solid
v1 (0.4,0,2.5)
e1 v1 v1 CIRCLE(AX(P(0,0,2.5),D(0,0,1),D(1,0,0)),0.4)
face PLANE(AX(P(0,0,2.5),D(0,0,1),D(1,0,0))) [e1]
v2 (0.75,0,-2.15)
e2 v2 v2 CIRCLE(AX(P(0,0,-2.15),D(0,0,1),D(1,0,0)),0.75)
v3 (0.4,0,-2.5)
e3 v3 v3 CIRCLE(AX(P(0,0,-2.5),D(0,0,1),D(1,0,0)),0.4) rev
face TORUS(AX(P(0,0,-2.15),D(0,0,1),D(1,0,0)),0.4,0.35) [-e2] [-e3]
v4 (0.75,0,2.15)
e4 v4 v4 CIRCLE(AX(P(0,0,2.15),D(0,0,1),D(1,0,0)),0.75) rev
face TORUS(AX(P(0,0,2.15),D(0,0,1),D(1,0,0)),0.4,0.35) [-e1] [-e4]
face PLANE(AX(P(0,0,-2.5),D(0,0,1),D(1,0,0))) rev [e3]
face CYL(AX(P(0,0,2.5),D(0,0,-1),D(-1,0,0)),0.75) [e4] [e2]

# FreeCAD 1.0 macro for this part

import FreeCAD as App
import Part
import Sketcher

V = App.Vector
Q = App.Units.Quantity


def edges_at(feature, points):
    """Names of the edges that pass closest to the given points."""
    edges = feature.Shape.Edges
    near = lambda p: min(range(len(edges)), key=lambda i: edges[i].distToShape(Part.Vertex(*p))[0])
    return sorted({f"Edge{near(p) + 1}" for p in points})

doc = App.newDocument("Part")
body = doc.addObject("PartDesign::Body", "Body")

# Sketch on XY plane
sketch1 = body.newObject("Sketcher::SketchObject", "Sketch")
sketch1.AttachmentSupport = (doc.getObject("XY_Plane"), [""])
sketch1.MapMode = "FlatFace"
sketch1.addGeometry(Part.Circle(V(0, 0, 0), V(0, 0, 1), 0.8), False)
sketch1.addConstraint([
    Sketcher.Constraint("Coincident", 0, 3, -1, 1),
    Sketcher.Constraint("Diameter", 0, Q("1.5 mm")),
])
pad1 = body.newObject("PartDesign::Pad", "Pad")
pad1.Profile = sketch1
pad1.Length = 5
pad1.Midplane = True
doc.recompute()

fillet = body.newObject("PartDesign::Fillet", "Fillet")
fillet.Base = (pad1, edges_at(pad1, [(-0.75, 0, -2.5), (-0.75, 0, 2.5)]))
fillet.Radius = 0.35

doc.recompute()
